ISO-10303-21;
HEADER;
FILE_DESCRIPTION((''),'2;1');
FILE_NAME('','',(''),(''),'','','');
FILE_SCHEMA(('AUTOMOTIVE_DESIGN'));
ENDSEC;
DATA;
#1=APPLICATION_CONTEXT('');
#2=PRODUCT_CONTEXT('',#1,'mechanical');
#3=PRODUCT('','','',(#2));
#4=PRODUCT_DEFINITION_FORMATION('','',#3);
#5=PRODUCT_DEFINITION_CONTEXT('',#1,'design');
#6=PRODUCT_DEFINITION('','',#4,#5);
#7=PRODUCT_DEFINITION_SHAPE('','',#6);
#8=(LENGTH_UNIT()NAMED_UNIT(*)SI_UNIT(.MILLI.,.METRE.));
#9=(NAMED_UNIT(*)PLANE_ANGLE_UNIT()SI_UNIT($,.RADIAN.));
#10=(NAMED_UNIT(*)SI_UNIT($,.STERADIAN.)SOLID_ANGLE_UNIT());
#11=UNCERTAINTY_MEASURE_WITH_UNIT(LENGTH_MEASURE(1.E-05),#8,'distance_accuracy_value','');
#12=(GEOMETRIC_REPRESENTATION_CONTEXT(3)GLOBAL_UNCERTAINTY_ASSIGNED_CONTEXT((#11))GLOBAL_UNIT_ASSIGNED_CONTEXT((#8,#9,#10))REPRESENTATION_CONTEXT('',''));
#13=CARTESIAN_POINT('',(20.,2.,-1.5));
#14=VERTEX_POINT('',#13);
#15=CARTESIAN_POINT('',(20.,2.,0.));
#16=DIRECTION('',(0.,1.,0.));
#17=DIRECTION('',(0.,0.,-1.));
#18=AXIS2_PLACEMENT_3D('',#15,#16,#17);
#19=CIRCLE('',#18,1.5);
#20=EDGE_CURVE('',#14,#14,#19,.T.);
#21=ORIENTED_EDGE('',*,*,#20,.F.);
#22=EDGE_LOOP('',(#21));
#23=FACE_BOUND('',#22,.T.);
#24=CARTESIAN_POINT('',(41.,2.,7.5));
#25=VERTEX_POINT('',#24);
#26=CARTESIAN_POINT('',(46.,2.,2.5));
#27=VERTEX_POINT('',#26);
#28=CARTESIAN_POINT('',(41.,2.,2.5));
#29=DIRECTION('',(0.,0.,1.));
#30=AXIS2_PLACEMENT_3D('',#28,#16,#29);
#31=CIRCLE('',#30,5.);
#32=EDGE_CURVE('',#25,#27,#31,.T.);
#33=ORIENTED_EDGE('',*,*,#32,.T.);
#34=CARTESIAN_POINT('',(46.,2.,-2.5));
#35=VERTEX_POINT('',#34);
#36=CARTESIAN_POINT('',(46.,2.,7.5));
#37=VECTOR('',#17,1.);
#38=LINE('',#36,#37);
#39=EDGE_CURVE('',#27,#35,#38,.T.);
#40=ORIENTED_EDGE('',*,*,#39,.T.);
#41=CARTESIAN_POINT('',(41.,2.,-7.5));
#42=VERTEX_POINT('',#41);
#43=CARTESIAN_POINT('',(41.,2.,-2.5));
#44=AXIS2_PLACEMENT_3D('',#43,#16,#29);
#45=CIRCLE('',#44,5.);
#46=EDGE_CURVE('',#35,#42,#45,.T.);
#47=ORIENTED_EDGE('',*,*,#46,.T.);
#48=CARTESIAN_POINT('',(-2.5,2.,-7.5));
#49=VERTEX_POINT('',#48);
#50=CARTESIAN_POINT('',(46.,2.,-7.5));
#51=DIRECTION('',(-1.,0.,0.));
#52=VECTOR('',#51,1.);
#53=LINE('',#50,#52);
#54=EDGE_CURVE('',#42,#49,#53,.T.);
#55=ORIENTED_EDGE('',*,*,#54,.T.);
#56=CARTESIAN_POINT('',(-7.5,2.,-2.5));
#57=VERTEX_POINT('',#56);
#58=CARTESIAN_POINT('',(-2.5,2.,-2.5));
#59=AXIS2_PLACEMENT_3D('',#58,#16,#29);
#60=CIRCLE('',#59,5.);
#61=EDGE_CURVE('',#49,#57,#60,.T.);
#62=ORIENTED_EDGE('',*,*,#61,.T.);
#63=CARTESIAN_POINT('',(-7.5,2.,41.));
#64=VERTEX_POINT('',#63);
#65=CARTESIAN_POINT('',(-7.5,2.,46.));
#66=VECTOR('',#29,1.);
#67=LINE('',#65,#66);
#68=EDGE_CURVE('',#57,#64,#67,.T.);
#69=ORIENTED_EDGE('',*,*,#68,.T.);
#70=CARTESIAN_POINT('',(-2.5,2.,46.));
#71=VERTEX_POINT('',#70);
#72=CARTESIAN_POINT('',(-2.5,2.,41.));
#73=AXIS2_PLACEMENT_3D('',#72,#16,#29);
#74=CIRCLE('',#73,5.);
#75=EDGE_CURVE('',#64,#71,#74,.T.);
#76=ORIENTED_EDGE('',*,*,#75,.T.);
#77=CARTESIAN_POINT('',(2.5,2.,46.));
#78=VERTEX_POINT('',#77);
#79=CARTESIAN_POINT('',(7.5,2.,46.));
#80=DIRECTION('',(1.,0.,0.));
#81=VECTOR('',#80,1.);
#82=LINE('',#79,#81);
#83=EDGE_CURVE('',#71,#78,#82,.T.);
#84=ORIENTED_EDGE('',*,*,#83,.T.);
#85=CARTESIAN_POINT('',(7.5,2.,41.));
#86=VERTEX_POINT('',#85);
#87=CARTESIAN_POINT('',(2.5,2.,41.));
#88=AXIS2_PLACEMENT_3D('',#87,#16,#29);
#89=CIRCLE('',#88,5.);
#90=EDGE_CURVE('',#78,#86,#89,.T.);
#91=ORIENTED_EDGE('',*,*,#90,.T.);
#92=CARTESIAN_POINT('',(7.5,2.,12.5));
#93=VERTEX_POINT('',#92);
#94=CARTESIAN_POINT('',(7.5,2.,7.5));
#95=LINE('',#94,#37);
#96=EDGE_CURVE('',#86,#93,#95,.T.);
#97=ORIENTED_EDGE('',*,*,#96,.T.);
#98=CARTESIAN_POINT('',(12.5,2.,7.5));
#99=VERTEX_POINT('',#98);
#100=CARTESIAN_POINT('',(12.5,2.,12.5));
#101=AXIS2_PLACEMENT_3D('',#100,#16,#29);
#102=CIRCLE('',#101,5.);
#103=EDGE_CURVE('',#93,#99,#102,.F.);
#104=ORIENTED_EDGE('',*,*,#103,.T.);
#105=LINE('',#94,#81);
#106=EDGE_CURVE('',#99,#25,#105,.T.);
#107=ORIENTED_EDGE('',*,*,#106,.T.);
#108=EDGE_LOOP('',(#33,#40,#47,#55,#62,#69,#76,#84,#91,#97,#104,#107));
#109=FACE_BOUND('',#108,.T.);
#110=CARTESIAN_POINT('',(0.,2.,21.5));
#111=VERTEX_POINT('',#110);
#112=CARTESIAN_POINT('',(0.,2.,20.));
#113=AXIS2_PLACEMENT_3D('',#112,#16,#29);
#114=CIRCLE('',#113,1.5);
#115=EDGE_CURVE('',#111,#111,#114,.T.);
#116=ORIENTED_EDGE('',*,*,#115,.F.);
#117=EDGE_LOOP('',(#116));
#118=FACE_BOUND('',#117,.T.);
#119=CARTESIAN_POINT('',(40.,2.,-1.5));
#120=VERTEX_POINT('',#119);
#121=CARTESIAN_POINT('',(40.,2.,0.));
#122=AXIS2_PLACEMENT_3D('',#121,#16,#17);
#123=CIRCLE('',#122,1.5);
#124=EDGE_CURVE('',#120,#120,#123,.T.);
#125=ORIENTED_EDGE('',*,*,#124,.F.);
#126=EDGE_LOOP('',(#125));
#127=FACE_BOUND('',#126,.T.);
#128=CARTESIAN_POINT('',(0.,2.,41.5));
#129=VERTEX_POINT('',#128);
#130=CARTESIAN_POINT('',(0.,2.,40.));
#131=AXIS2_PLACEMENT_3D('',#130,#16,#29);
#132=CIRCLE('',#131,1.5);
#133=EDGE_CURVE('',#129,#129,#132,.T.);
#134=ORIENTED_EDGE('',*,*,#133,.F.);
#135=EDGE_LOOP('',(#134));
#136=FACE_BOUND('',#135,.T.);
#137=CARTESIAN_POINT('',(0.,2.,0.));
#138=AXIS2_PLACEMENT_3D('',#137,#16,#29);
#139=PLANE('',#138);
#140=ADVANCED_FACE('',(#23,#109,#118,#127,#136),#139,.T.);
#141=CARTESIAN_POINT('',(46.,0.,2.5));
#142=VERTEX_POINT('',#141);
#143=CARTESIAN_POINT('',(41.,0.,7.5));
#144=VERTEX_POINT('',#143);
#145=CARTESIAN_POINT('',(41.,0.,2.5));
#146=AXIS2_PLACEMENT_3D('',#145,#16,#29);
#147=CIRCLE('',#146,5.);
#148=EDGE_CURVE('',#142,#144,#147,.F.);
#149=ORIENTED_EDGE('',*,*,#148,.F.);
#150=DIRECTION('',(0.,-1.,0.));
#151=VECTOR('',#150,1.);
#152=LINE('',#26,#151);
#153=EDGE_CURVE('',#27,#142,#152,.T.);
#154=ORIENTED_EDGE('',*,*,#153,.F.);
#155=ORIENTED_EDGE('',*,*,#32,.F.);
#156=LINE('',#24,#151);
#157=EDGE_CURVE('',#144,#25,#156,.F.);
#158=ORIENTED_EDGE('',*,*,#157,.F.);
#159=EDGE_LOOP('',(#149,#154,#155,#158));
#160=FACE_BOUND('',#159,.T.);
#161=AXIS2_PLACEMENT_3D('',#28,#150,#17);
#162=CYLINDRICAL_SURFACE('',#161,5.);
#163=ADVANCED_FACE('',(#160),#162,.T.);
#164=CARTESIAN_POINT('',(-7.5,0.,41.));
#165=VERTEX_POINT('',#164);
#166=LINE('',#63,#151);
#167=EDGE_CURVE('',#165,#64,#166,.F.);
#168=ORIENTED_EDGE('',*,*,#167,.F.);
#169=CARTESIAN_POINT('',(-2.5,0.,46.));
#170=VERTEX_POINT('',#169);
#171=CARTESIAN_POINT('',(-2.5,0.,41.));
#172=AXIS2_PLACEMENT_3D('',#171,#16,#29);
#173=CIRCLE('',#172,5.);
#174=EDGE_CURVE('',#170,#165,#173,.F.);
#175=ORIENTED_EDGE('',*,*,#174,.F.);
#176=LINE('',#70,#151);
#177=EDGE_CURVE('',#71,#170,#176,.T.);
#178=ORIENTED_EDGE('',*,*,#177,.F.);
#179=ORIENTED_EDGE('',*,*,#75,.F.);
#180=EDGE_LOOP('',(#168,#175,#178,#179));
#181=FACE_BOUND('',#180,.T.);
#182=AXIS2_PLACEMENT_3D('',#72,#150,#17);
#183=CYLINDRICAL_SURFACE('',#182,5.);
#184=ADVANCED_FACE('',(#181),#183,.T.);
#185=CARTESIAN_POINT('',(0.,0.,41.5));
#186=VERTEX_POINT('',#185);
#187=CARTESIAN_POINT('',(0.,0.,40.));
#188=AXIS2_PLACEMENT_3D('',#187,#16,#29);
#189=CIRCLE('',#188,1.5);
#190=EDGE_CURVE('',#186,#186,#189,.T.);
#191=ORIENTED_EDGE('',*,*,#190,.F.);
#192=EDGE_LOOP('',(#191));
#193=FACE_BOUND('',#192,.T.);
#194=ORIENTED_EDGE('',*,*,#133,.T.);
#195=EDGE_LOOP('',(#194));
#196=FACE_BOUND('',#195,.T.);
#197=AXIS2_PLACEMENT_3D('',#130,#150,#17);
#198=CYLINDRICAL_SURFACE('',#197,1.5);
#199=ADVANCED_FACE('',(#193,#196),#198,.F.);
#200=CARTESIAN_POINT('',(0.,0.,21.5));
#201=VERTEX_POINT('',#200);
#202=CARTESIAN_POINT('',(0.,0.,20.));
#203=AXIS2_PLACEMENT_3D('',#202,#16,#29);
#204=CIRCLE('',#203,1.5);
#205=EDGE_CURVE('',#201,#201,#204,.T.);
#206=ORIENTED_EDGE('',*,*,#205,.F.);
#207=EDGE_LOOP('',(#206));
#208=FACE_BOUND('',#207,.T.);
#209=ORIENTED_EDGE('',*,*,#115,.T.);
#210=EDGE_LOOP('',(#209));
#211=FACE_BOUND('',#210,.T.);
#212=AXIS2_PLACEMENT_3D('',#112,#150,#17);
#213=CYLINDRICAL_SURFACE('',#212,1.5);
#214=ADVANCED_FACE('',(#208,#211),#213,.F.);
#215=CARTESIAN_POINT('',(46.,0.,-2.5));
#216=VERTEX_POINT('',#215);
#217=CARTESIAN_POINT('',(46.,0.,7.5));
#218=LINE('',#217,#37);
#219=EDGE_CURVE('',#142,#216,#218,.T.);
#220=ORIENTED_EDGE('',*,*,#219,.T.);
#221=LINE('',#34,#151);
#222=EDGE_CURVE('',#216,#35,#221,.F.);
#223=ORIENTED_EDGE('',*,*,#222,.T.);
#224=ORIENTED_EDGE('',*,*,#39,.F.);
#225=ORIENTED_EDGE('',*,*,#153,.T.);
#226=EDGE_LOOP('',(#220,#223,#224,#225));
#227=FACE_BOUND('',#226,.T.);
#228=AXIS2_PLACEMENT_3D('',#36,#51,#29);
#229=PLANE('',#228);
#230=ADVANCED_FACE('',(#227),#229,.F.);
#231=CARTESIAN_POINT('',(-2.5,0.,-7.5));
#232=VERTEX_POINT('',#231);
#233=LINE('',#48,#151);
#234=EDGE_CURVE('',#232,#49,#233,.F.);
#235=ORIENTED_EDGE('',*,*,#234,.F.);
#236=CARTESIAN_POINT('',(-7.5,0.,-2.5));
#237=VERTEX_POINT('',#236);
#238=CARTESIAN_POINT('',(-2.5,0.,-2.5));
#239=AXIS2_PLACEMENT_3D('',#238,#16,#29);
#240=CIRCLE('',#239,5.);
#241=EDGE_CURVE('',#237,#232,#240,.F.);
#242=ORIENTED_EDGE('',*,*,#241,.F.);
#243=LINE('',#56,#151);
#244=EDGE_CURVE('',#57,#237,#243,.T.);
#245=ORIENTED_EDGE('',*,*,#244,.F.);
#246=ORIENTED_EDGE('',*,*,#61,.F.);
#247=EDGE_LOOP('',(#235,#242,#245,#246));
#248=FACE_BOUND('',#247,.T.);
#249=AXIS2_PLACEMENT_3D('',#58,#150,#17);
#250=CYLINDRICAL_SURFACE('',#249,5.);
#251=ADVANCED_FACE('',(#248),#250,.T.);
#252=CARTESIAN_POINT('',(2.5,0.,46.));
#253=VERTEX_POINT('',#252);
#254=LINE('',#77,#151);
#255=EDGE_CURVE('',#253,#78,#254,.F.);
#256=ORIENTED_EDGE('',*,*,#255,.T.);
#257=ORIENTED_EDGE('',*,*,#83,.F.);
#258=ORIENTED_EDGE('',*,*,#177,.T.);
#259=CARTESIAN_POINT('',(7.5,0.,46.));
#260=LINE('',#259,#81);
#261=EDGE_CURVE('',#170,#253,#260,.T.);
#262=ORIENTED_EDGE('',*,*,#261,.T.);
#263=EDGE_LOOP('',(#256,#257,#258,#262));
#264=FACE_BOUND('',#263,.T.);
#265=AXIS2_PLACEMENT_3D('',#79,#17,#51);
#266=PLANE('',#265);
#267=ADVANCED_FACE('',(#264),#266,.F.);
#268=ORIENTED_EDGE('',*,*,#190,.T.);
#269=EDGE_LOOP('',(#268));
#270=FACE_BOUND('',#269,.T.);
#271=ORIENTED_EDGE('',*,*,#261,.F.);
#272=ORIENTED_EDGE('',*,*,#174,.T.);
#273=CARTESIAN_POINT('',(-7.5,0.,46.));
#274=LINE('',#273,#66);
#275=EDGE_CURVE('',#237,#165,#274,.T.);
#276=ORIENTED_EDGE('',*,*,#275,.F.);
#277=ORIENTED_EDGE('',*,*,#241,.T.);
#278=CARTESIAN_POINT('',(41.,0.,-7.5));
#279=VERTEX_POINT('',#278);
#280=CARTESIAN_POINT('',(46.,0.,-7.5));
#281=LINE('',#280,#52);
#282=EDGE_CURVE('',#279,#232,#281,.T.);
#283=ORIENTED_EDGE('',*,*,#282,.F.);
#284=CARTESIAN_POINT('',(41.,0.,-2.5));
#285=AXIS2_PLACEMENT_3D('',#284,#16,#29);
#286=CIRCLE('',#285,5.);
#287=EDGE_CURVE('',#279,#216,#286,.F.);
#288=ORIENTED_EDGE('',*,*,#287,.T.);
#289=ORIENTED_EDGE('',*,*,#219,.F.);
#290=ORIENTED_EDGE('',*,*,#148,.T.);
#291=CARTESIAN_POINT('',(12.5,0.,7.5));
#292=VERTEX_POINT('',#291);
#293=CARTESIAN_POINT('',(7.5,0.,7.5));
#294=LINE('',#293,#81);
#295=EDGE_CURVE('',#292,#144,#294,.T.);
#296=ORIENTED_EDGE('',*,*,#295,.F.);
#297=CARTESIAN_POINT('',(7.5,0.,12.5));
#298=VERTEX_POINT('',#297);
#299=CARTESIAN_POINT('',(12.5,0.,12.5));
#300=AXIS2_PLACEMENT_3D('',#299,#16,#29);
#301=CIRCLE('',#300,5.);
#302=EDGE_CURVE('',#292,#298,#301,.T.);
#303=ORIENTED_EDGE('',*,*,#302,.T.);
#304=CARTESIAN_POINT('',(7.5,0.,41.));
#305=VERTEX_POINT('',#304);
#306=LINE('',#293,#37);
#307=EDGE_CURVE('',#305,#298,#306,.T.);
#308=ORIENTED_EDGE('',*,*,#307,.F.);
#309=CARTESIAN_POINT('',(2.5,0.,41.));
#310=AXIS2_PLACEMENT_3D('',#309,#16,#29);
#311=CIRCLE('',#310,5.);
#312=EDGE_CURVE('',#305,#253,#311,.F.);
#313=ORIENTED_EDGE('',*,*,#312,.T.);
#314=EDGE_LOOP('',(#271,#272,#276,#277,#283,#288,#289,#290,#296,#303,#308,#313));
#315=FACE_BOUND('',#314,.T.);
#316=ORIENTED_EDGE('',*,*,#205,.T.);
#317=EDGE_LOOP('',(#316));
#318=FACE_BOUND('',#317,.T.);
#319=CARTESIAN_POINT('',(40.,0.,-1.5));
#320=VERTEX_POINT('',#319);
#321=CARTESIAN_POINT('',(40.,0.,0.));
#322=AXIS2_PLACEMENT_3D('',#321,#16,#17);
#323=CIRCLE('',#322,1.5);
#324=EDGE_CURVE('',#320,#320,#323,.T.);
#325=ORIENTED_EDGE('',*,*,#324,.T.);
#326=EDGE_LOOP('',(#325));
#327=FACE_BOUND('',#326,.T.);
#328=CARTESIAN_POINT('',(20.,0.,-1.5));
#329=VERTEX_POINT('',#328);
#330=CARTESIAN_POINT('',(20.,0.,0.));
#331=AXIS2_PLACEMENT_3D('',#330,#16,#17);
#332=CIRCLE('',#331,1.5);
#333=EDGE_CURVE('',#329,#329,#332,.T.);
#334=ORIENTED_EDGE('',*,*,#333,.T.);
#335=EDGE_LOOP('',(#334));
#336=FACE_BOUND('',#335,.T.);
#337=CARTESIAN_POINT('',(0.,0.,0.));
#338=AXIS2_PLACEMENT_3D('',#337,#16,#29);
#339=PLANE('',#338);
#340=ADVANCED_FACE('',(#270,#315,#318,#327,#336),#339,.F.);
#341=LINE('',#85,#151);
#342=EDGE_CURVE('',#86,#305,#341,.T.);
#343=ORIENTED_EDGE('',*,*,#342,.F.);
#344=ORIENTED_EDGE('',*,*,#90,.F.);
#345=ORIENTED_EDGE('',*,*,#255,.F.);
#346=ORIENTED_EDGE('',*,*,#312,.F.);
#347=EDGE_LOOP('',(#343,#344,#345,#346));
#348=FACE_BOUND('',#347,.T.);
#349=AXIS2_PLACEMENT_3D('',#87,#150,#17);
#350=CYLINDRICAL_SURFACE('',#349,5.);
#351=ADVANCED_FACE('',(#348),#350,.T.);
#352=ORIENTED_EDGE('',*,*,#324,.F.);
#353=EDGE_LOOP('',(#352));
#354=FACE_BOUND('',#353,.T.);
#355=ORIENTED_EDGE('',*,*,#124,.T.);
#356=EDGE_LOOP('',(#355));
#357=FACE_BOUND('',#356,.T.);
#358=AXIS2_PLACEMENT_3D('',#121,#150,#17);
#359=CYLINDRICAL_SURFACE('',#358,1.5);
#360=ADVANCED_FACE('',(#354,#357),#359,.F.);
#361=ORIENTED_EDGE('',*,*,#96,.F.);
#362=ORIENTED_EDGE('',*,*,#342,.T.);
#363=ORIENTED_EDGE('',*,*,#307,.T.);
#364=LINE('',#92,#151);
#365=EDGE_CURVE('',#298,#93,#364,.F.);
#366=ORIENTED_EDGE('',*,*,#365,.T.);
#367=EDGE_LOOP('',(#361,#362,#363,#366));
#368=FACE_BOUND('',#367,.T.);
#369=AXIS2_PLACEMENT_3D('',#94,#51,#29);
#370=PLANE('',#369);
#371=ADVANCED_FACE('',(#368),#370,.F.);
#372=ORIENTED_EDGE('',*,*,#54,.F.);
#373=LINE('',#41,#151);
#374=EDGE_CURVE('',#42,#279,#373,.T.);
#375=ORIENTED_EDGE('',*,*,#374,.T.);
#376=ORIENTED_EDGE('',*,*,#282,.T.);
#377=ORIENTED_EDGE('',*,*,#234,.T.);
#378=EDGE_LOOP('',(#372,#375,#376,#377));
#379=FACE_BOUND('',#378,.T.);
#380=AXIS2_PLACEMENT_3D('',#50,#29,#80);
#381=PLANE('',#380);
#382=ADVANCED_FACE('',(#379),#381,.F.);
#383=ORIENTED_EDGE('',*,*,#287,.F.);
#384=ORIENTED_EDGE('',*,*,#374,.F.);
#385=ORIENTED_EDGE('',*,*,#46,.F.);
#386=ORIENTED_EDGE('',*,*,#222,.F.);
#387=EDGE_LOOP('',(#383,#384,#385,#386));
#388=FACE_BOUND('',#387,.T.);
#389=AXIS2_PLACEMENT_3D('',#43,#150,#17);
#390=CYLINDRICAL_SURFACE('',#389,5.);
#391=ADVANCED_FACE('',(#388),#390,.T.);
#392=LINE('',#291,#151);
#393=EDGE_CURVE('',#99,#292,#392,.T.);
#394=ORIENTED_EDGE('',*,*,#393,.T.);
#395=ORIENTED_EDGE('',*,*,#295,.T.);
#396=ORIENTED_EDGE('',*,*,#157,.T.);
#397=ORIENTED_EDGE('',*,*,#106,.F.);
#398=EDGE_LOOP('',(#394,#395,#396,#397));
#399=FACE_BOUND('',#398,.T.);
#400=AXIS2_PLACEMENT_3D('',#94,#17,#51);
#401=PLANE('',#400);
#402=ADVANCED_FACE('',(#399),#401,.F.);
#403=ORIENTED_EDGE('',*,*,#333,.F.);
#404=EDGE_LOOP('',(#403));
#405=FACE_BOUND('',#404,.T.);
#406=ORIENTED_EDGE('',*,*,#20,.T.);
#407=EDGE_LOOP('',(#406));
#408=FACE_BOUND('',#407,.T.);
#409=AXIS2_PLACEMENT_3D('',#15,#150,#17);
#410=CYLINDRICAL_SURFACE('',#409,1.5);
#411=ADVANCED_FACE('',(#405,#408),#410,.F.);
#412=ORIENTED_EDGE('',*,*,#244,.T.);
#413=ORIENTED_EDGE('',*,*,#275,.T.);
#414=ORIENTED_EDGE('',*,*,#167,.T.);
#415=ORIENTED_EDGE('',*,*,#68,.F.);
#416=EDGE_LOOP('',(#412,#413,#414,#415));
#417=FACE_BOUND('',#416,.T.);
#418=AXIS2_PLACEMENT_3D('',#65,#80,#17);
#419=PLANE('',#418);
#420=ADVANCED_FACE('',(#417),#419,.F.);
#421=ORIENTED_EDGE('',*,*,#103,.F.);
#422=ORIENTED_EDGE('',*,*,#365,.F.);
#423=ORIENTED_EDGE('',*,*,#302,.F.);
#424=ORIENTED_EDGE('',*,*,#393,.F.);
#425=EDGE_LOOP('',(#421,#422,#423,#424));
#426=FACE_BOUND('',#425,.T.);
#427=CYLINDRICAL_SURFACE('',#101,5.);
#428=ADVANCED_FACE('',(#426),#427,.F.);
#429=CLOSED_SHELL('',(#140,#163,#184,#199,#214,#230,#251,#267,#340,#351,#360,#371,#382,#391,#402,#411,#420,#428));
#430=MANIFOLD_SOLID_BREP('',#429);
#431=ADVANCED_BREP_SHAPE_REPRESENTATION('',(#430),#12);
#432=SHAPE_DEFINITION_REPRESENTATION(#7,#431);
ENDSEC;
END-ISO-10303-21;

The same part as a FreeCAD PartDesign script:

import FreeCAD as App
import Part
import Sketcher

V = App.Vector


def edges_at(feature, points):
    """Names of the edges that pass closest to the given points."""
    edges = feature.Shape.Edges
    near = lambda p: min(range(len(edges)), key=lambda i: edges[i].distToShape(Part.Vertex(*p))[0])
    return sorted({f"Edge{near(p) + 1}" for p in points})

doc = App.newDocument("Part")
params = doc.addObject("Spreadsheet::Sheet", "Params")
for row, (alias, value) in enumerate([
    ("sketch1_diameter", "3 mm"),
    ("sketch1_width", "15 mm"),
    ("sketch1_width2", "38.5 mm"),
    ("pad1_length", "2 mm"),
    ("fillet_radius", "5 mm"),
], start=1):
    params.set(f"A{row}", alias)
    params.set(f"B{row}", "=" + value)
    params.setAlias(f"B{row}", alias)

body = doc.addObject("PartDesign::Body", "Body")

sketch1 = doc.addObject("Sketcher::SketchObject", "Sketch")
body.addObject(sketch1)
sketch1.AttachmentSupport = (doc.XZ_Plane, [""])
sketch1.MapMode = "FlatFace"
sketch1.addGeometry([
    Part.LineSegment(V(7.5, 46, 0), V(7.5, 7.5, 0)),
    Part.LineSegment(V(7.5, 7.5, 0), V(46, 7.5, 0)),
    Part.LineSegment(V(46, 7.5, 0), V(46, -7.5, 0)),
    Part.LineSegment(V(46, -7.5, 0), V(-7.5, -7.5, 0)),
    Part.LineSegment(V(-7.5, -7.5, 0), V(-7.5, 46, 0)),
    Part.LineSegment(V(-7.5, 46, 0), V(7.5, 46, 0)),
    Part.Circle(V(0, 40, 0), V(0, 0, 1), 1.5),
    Part.Circle(V(40, 0, 0), V(0, 0, 1), 1.5),
    Part.Circle(V(0, 20, 0), V(0, 0, 1), 1.5),
    Part.Circle(V(20, 0, 0), V(0, 0, 1), 1.5),
], False)
sketch1.addConstraint([
    Sketcher.Constraint("Coincident", 0, 2, 1, 1),
    Sketcher.Constraint("Coincident", 1, 2, 2, 1),
    Sketcher.Constraint("Coincident", 2, 2, 3, 1),
    Sketcher.Constraint("Coincident", 3, 2, 4, 1),
    Sketcher.Constraint("Coincident", 4, 2, 5, 1),
    Sketcher.Constraint("Coincident", 5, 2, 0, 1),
    Sketcher.Constraint("Vertical", 0),
    Sketcher.Constraint("Horizontal", 1),
    Sketcher.Constraint("Vertical", 2),
    Sketcher.Constraint("Horizontal", 3),
    Sketcher.Constraint("Vertical", 4),
    Sketcher.Constraint("Horizontal", 5),
    Sketcher.Constraint("Equal", 6, 7),
    Sketcher.Constraint("Equal", 7, 8),
    Sketcher.Constraint("Equal", 8, 9),
    Sketcher.Constraint("Symmetric", 0, 2, 3, 2, -1, 1),
    Sketcher.Constraint("PointOnObject", 6, 3, -2),
    Sketcher.Constraint("PointOnObject", 7, 3, -1),
    Sketcher.Constraint("PointOnObject", 8, 3, -2),
    Sketcher.Constraint("PointOnObject", 9, 3, -1),
    Sketcher.Constraint("Equal", 1, 0),
    Sketcher.Constraint("Equal", 5, 2),
    Sketcher.Constraint("Diameter", 6, 3.0),
    Sketcher.Constraint("DistanceX", 5, 1, 5, 2, 15.0),
    Sketcher.Constraint("DistanceX", 1, 1, 1, 2, 38.5),
    Sketcher.Constraint("DistanceY", -1, 1, 6, 3, 40.0),
    Sketcher.Constraint("DistanceX", -1, 1, 7, 3, 40.0),
    Sketcher.Constraint("DistanceY", -1, 1, 8, 3, 20.0),
    Sketcher.Constraint("DistanceX", -1, 1, 9, 3, 20.0),
])
sketch1.setExpression("Constraints[22]", "Params.sketch1_diameter")
sketch1.setExpression("Constraints[23]", "Params.sketch1_width")
sketch1.setExpression("Constraints[24]", "Params.sketch1_width2")
pad1 = doc.addObject("PartDesign::Pad", "Pad")
body.addObject(pad1)
pad1.Profile = sketch1
pad1.setExpression("Length", "Params.pad1_length")
pad1.Reversed = True
doc.recompute()

fillet = doc.addObject("PartDesign::Fillet", "Fillet")
body.addObject(fillet)
fillet.Base = (pad1, edges_at(pad1, [
    (7.5, 1, 7.5),
    (7.5, 1, 46),
    (-7.5, 1, 46),
    (-7.5, 1, -7.5),
    (46, 1, -7.5),
    (46, 1, 7.5),
]))
fillet.setExpression("Radius", "Params.fillet_radius")

doc.recompute()
